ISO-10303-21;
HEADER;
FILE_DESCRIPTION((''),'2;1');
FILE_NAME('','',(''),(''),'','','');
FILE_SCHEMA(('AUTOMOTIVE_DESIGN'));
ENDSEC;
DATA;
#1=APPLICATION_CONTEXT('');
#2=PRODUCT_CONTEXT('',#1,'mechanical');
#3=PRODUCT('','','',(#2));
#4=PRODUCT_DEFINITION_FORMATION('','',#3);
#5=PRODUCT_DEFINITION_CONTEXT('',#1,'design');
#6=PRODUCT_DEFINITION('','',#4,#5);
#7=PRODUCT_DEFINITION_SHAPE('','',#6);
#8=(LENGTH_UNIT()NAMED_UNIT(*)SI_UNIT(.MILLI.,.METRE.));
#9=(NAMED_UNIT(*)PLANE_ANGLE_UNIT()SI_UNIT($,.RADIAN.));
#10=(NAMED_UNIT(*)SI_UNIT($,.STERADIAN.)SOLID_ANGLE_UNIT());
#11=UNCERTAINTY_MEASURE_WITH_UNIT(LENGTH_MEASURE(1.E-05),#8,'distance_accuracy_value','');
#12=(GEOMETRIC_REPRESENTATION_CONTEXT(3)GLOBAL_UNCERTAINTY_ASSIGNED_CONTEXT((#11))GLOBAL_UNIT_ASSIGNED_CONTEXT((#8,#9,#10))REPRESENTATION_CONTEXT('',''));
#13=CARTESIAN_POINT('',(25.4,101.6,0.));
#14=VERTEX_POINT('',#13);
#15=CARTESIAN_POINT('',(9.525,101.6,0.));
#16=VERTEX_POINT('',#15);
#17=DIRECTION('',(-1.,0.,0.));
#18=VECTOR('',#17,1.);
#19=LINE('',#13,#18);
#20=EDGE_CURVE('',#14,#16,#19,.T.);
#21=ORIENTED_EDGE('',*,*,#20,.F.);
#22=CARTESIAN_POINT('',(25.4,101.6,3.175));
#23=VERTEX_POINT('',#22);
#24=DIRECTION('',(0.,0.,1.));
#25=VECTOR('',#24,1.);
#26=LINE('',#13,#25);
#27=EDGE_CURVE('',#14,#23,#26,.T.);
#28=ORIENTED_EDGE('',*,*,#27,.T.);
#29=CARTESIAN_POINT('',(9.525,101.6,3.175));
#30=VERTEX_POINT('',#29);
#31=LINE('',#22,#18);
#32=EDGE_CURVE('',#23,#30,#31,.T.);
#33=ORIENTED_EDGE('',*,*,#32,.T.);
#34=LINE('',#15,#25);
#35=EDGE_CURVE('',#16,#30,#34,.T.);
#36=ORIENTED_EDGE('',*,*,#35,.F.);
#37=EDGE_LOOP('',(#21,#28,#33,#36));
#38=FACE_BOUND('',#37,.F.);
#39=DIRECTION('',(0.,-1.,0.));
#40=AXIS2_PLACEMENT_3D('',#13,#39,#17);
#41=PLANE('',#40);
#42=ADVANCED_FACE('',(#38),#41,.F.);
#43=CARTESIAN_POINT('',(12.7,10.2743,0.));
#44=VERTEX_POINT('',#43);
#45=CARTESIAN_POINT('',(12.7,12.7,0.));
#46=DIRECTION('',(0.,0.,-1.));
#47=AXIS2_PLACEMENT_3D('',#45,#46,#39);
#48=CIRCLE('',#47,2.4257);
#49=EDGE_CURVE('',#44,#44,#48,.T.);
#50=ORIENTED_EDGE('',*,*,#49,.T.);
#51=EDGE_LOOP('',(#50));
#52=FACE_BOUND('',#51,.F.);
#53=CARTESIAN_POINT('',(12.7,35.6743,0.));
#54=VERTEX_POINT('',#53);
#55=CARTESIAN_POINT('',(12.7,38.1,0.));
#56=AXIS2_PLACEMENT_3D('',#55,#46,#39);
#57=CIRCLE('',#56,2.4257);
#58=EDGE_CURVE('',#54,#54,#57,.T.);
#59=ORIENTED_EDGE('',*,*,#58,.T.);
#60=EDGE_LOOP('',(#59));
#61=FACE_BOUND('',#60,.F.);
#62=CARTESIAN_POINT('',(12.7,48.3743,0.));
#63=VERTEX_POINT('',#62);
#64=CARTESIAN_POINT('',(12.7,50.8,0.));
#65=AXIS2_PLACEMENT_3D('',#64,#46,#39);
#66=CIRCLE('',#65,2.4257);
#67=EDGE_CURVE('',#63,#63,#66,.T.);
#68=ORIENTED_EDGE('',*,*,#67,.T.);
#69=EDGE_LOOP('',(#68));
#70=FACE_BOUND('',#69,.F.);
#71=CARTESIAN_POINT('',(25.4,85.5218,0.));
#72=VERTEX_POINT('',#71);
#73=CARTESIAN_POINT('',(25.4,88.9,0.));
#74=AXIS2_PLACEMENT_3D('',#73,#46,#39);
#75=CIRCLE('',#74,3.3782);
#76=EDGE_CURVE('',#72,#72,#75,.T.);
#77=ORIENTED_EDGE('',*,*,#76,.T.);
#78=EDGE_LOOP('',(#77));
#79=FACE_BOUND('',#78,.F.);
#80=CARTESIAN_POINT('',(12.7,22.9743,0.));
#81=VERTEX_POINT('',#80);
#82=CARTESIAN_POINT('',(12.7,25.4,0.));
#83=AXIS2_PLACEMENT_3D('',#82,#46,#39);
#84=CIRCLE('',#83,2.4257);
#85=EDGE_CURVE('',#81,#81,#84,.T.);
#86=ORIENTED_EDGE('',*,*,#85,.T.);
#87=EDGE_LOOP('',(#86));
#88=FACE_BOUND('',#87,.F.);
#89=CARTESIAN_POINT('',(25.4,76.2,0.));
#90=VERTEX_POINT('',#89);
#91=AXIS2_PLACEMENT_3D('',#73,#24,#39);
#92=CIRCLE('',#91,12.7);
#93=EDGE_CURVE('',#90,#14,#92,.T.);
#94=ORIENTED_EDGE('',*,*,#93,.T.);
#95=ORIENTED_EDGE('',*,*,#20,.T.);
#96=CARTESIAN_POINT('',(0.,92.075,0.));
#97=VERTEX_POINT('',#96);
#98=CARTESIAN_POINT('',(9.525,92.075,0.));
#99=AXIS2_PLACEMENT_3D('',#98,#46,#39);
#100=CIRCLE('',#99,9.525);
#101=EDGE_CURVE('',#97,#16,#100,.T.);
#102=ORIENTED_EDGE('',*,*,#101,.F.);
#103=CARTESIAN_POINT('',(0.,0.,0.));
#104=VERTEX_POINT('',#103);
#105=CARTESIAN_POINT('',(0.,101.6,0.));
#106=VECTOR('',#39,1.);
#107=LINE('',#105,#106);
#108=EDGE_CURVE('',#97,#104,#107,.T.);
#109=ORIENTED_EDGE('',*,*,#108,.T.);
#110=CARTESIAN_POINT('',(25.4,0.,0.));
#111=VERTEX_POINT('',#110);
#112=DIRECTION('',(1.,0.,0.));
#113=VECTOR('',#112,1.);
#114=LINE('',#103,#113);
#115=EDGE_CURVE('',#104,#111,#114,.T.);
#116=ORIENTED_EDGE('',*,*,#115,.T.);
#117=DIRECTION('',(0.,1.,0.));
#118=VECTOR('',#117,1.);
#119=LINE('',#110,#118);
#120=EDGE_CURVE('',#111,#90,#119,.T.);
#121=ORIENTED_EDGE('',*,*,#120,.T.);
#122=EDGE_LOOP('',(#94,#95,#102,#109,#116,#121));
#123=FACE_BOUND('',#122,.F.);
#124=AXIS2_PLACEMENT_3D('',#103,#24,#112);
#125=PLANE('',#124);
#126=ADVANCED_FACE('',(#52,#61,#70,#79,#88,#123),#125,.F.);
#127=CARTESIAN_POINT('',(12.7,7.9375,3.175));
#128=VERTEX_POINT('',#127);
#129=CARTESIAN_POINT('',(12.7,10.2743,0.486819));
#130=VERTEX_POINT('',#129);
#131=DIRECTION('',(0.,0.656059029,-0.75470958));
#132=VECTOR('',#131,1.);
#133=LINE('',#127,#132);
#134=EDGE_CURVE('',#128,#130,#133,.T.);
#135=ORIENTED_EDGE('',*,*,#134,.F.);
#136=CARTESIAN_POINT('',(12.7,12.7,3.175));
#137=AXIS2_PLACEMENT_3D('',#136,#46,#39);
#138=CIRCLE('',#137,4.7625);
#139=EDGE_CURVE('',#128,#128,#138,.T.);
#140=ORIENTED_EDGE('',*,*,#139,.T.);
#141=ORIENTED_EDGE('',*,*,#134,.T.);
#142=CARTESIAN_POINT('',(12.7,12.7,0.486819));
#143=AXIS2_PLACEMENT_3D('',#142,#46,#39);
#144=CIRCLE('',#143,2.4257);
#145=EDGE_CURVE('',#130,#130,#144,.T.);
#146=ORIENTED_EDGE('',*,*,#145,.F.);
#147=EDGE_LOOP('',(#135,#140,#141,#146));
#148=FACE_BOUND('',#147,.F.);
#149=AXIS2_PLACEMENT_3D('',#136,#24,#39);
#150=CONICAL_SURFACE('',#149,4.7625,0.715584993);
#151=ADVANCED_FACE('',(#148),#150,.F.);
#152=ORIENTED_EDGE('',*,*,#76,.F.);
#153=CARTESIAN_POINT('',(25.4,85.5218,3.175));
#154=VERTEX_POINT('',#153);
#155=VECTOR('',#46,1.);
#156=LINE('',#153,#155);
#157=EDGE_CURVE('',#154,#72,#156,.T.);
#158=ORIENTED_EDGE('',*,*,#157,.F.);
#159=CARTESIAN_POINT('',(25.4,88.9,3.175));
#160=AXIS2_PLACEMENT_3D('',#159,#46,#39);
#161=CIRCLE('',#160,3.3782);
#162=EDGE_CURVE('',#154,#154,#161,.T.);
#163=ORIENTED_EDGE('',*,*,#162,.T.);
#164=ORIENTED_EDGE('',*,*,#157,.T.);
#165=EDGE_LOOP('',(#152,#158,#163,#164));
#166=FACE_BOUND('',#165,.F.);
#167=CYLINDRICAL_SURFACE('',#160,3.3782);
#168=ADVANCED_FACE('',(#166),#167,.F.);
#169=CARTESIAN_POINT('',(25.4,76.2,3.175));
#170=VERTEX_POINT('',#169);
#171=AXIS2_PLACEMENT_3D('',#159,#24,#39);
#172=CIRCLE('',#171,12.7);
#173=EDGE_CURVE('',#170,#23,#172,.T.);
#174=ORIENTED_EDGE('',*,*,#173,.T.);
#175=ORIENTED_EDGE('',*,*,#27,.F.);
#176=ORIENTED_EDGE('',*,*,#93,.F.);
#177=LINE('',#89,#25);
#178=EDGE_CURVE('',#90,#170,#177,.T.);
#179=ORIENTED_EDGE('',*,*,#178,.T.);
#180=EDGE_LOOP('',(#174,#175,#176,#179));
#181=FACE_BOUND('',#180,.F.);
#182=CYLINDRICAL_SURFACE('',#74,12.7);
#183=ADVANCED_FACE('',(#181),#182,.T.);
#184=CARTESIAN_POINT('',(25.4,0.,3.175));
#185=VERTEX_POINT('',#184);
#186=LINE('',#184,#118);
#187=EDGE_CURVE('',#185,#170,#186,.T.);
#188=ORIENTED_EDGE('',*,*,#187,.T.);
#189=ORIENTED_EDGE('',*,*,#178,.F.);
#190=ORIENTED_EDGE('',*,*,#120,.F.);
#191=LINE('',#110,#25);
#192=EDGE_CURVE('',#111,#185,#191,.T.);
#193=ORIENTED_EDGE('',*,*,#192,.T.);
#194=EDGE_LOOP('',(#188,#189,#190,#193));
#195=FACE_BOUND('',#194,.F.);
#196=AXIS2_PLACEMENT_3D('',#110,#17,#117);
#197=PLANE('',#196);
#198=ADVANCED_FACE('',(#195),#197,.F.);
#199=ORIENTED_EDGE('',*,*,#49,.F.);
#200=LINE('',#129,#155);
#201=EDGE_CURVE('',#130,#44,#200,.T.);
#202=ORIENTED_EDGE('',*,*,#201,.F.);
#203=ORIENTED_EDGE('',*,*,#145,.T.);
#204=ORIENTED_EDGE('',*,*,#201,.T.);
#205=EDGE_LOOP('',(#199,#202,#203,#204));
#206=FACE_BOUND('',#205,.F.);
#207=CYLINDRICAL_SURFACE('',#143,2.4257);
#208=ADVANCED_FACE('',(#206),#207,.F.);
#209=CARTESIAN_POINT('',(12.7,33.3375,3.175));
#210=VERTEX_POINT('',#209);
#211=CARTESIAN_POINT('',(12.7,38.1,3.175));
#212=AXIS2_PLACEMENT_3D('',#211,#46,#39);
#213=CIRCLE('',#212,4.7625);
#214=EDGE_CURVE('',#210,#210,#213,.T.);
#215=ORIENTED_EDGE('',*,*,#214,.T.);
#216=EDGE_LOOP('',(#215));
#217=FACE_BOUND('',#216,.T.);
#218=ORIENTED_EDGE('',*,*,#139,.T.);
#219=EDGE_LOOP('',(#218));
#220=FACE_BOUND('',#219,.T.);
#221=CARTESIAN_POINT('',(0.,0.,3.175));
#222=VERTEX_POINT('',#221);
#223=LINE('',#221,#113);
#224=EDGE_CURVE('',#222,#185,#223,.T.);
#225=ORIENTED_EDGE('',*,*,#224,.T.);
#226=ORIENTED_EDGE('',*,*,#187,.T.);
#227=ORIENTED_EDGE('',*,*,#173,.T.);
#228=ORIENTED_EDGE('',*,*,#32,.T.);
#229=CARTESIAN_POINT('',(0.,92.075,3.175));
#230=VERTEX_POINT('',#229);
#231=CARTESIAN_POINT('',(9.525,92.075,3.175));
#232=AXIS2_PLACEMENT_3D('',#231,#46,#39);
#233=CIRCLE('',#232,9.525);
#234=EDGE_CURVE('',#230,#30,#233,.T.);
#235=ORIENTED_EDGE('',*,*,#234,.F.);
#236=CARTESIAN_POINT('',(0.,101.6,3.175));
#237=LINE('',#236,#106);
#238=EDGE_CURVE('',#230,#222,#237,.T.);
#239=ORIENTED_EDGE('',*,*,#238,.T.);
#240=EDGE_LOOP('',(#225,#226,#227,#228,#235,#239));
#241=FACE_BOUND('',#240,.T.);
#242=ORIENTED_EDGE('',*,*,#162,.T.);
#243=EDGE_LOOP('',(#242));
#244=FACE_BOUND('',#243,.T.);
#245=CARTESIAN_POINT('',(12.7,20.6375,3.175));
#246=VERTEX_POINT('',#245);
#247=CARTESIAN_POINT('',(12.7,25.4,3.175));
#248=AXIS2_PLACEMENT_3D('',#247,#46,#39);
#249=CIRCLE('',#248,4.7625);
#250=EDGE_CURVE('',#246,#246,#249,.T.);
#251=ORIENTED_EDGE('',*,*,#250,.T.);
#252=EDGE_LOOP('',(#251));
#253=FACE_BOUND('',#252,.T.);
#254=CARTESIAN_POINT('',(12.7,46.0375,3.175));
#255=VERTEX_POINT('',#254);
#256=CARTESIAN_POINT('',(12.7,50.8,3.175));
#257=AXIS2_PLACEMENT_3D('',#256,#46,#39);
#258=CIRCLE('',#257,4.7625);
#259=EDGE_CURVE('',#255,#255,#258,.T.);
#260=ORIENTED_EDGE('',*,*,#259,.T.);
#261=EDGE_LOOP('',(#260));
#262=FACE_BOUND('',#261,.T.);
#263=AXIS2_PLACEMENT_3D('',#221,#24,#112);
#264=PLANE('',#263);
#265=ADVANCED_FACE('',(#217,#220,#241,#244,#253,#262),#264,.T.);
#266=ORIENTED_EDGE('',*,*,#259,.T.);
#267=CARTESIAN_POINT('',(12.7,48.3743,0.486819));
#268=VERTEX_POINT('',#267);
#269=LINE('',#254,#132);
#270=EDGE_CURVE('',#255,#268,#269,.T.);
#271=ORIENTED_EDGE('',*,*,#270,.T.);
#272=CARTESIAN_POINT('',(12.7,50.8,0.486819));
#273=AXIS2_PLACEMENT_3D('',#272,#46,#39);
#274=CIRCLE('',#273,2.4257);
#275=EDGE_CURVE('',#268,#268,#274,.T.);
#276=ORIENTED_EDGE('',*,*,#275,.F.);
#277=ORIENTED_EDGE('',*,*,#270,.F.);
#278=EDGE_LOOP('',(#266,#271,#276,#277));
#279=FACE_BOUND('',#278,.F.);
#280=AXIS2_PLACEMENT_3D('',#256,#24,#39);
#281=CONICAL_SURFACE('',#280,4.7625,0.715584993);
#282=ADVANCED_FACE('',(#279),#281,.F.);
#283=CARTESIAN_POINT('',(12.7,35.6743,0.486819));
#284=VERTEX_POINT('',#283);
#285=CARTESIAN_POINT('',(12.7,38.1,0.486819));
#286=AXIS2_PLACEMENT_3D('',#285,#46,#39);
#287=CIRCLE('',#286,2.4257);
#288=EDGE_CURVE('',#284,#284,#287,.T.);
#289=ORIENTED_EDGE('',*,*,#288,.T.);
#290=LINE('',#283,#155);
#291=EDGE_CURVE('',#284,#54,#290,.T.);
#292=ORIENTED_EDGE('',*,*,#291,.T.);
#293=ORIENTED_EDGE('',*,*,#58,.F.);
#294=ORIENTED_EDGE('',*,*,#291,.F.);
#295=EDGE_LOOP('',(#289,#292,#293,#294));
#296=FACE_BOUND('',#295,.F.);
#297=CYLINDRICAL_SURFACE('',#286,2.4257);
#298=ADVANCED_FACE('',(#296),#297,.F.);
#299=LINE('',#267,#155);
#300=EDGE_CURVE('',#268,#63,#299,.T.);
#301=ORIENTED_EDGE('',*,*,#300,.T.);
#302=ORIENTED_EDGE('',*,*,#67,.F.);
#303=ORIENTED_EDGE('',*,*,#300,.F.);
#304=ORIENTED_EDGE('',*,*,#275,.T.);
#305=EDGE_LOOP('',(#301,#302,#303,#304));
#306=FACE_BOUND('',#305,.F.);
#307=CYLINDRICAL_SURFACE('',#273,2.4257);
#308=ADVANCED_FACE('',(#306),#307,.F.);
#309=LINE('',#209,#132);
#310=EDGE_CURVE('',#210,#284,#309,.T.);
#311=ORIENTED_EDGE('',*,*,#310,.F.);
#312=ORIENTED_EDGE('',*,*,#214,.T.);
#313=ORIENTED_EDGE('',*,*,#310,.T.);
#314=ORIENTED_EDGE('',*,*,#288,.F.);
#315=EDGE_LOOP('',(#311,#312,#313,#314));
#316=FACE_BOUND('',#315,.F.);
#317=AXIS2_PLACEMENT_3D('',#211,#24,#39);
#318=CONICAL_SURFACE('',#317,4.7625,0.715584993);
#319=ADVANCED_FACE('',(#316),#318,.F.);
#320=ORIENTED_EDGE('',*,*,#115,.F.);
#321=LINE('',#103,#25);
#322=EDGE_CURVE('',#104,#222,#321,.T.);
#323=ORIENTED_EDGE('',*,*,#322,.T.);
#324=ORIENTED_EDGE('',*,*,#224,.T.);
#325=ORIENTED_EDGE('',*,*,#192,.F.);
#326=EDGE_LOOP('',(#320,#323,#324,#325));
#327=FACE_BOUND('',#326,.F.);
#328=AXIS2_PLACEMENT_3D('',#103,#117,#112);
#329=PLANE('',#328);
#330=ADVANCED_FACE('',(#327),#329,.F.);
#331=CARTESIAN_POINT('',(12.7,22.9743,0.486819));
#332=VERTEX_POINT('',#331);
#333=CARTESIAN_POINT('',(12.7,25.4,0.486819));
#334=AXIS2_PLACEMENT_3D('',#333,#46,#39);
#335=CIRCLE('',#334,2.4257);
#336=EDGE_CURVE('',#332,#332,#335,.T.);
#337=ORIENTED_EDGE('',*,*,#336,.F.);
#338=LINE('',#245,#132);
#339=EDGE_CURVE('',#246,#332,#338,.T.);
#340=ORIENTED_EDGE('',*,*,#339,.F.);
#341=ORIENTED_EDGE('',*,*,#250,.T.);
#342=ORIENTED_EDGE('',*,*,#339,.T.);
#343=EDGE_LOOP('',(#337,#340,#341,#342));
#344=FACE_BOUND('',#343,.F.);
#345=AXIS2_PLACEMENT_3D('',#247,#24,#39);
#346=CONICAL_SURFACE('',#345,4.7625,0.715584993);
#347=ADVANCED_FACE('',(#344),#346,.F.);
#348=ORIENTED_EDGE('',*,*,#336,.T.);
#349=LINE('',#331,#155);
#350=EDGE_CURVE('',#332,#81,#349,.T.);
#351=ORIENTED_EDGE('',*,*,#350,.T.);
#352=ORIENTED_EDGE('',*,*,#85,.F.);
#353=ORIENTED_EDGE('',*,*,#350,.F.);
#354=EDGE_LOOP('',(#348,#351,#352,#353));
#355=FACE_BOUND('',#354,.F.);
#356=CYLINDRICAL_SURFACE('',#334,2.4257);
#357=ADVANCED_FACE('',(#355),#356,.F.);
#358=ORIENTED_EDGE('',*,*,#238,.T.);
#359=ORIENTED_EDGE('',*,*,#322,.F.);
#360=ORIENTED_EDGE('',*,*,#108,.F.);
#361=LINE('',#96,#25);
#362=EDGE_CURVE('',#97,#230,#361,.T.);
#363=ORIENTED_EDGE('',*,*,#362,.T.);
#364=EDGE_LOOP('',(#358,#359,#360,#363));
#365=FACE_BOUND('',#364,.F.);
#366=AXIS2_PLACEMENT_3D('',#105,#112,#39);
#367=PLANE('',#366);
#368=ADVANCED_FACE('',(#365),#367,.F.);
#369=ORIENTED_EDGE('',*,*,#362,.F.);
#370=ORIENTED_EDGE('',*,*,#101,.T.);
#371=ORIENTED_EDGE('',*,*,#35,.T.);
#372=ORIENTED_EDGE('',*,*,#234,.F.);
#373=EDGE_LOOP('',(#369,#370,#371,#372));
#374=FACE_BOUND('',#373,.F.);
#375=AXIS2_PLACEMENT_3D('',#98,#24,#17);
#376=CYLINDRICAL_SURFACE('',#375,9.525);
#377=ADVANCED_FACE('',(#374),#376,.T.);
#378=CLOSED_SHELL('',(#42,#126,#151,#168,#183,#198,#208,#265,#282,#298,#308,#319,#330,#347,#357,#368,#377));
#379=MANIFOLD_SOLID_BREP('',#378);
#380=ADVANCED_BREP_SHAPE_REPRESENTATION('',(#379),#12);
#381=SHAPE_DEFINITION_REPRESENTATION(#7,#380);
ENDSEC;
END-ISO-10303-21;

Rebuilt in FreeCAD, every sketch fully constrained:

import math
import FreeCAD as App
import Part
import Sketcher
Q = App.Units.Quantity


def edges_at(feature, points):
    """Names of the edges that pass closest to the given points."""
    edges = feature.Shape.Edges
    near = lambda p: min(range(len(edges)), key=lambda i: edges[i].distToShape(Part.Vertex(*p))[0])
    return sorted({f"Edge{near(p) + 1}" for p in points})

doc = App.newDocument("Part")
body = doc.addObject("PartDesign::Body", "Body")

# Sketch on XY plane
sketch1 = body.newObject("Sketcher::SketchObject", "Sketch")
sketch1.AttachmentSupport = (doc.getObject("XY_Plane"), [""])
sketch1.MapMode = "FlatFace"
sketch1.addGeometry([
    Part.LineSegment(App.Vector(0, 101.6, 0), App.Vector(0, 0, 0)),  # 0
    Part.LineSegment(App.Vector(0, 0, 0), App.Vector(25.4, 0, 0)),  # 1
    Part.LineSegment(App.Vector(25.4, 0, 0), App.Vector(25.4, 76.2, 0)),  # 2
    Part.ArcOfCircle(Part.Circle(App.Vector(25.4, 88.9, 0), App.Vector(0, 0, 1), 12.7), math.radians(-90), math.radians(90)),  # 3
    Part.LineSegment(App.Vector(25.4, 101.6, 0), App.Vector(0, 101.6, 0)),  # 4
], False)
sketch1.addConstraint([
    Sketcher.Constraint("Coincident", 0, 2, 1, 1),
    Sketcher.Constraint("Coincident", 1, 2, 2, 1),
    Sketcher.Constraint("Coincident", 2, 2, 3, 1),
    Sketcher.Constraint("Tangent", 3, 2, 4, 1),
    Sketcher.Constraint("Coincident", 4, 2, 0, 1),
    Sketcher.Constraint("Vertical", 0),
    Sketcher.Constraint("Horizontal", 1),
    Sketcher.Constraint("Vertical", 2),
    Sketcher.Constraint("Horizontal", 4),
    Sketcher.Constraint("Coincident", 0, 2, -1, 1),
    Sketcher.Constraint("Vertical", 3, 3, 1, 2),
    Sketcher.Constraint("Radius", 3, Q("0.5 in")),
    Sketcher.Constraint("DistanceX", 1, 1, 1, 2, Q("1 in")),
    Sketcher.Constraint("DistanceY", 0, 2, 0, 1, Q("4 in")),
])
pad1 = body.newObject("PartDesign::Pad", "Pad")
pad1.Profile = sketch1
pad1.Length = Q("0.125 in")

# Sketch on XY plane
sketch2 = body.newObject("Sketcher::SketchObject", "Sketch001")
sketch2.AttachmentSupport = (doc.getObject("XY_Plane"), [""])
sketch2.MapMode = "FlatFace"
sketch2.AttachmentOffset = App.Placement(App.Vector(0, 0, 0.125 * 25.4), App.Rotation())
sketch2.addGeometry([
    Part.Circle(App.Vector(12.7, 50.8, 0), App.Vector(0, 0, 1), 2.4257),
    Part.Circle(App.Vector(12.7, 38.1, 0), App.Vector(0, 0, 1), 2.4257),
    Part.Circle(App.Vector(12.7, 25.4, 0), App.Vector(0, 0, 1), 2.4257),
    Part.Circle(App.Vector(12.7, 12.7, 0), App.Vector(0, 0, 1), 2.4257),
], False)
sketch2.addConstraint([
    Sketcher.Constraint("Equal", 0, 1),
    Sketcher.Constraint("Equal", 1, 2),
    Sketcher.Constraint("Equal", 2, 3),
    Sketcher.Constraint("Vertical", 0, 3, 1, 3),
    Sketcher.Constraint("Vertical", 1, 3, 2, 3),
    Sketcher.Constraint("Vertical", 2, 3, 3, 3),
    Sketcher.Constraint("Diameter", 0, Q("0.191 in")),
    Sketcher.Constraint("DistanceY", -1, 1, 0, 3, Q("2 in")),
    Sketcher.Constraint("DistanceY", -1, 1, 2, 3, Q("1 in")),
    Sketcher.Constraint("DistanceY", 3, 3, 1, 3, Q("1 in")),
    Sketcher.Constraint("DistanceX", -1, 1, 0, 3, Q("0.5 in")),
    Sketcher.Constraint("DistanceY", -1, 1, 1, 3, Q("1.5 in")),
])
doc.recompute()
hole = body.newObject("PartDesign::Hole", "Hole")
hole.Profile = sketch2
hole.ThreadType = "None"
hole.Diameter = Q("0.191 in")
hole.DepthType = "ThroughAll"
hole.HoleCutType = "Countersink"
hole.HoleCutDiameter = Q("0.375 in")
hole.HoleCutCountersinkAngle = 82

# Sketch on XY plane
sketch3 = body.newObject("Sketcher::SketchObject", "Sketch002")
sketch3.AttachmentSupport = (doc.getObject("XY_Plane"), [""])
sketch3.MapMode = "FlatFace"
sketch3.AttachmentOffset = App.Placement(App.Vector(0, 0, 0.125 * 25.4), App.Rotation())
sketch3.addGeometry(Part.Circle(App.Vector(25.4, 88.9, 0), App.Vector(0, 0, 1), 3.3782), False)
sketch3.addConstraint([
    Sketcher.Constraint("Diameter", 0, Q("0.266 in")),
    Sketcher.Constraint("DistanceX", -1, 1, 0, 3, Q("1 in")),
    Sketcher.Constraint("DistanceY", -1, 1, 0, 3, Q("3.5 in")),
])
doc.recompute()
hole2 = body.newObject("PartDesign::Hole", "Hole001")
hole2.Profile = sketch3
hole2.ThreadType = "None"
hole2.Diameter = Q("0.266 in")
hole2.DepthType = "ThroughAll"
doc.recompute()

fillet = body.newObject("PartDesign::Fillet", "Fillet")
fillet.Base = (hole2, edges_at(hole2, [(0, 101.6, 1.587)]))
fillet.Radius = Q("0.375 in")

doc.recompute()
